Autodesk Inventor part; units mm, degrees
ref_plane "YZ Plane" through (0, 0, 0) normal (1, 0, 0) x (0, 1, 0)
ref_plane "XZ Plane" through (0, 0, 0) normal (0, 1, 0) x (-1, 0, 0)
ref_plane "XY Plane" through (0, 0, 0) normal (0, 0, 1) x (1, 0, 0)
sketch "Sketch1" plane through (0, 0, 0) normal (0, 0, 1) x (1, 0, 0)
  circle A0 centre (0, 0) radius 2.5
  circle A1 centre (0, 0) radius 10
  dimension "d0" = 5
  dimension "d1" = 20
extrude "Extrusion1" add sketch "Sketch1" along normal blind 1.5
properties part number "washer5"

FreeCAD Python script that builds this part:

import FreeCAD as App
import Part
import Sketcher

doc = App.newDocument("Part")
body = doc.addObject("PartDesign::Body", "Body")

# Sketch on XY plane
sketch1 = body.newObject("Sketcher::SketchObject", "Sketch")
sketch1.AttachmentSupport = (doc.getObject("XY_Plane"), [""])
sketch1.MapMode = "FlatFace"
sketch1.addGeometry([
    Part.Circle(App.Vector(0, 0, 0), App.Vector(0, 0, 1), 10),
    Part.Circle(App.Vector(0, 0, 0), App.Vector(0, 0, 1), 2.5),
], False)
sketch1.addConstraint([
    Sketcher.Constraint("Coincident", 0, 3, -1, 1),
    Sketcher.Constraint("Coincident", 1, 3, -1, 1),
    Sketcher.Constraint("Diameter", 0, 20.0),
    Sketcher.Constraint("Diameter", 1, 5.0),
])
pad1 = body.newObject("PartDesign::Pad", "Pad")
pad1.Profile = sketch1
pad1.Length = 1.5

doc.recompute()
